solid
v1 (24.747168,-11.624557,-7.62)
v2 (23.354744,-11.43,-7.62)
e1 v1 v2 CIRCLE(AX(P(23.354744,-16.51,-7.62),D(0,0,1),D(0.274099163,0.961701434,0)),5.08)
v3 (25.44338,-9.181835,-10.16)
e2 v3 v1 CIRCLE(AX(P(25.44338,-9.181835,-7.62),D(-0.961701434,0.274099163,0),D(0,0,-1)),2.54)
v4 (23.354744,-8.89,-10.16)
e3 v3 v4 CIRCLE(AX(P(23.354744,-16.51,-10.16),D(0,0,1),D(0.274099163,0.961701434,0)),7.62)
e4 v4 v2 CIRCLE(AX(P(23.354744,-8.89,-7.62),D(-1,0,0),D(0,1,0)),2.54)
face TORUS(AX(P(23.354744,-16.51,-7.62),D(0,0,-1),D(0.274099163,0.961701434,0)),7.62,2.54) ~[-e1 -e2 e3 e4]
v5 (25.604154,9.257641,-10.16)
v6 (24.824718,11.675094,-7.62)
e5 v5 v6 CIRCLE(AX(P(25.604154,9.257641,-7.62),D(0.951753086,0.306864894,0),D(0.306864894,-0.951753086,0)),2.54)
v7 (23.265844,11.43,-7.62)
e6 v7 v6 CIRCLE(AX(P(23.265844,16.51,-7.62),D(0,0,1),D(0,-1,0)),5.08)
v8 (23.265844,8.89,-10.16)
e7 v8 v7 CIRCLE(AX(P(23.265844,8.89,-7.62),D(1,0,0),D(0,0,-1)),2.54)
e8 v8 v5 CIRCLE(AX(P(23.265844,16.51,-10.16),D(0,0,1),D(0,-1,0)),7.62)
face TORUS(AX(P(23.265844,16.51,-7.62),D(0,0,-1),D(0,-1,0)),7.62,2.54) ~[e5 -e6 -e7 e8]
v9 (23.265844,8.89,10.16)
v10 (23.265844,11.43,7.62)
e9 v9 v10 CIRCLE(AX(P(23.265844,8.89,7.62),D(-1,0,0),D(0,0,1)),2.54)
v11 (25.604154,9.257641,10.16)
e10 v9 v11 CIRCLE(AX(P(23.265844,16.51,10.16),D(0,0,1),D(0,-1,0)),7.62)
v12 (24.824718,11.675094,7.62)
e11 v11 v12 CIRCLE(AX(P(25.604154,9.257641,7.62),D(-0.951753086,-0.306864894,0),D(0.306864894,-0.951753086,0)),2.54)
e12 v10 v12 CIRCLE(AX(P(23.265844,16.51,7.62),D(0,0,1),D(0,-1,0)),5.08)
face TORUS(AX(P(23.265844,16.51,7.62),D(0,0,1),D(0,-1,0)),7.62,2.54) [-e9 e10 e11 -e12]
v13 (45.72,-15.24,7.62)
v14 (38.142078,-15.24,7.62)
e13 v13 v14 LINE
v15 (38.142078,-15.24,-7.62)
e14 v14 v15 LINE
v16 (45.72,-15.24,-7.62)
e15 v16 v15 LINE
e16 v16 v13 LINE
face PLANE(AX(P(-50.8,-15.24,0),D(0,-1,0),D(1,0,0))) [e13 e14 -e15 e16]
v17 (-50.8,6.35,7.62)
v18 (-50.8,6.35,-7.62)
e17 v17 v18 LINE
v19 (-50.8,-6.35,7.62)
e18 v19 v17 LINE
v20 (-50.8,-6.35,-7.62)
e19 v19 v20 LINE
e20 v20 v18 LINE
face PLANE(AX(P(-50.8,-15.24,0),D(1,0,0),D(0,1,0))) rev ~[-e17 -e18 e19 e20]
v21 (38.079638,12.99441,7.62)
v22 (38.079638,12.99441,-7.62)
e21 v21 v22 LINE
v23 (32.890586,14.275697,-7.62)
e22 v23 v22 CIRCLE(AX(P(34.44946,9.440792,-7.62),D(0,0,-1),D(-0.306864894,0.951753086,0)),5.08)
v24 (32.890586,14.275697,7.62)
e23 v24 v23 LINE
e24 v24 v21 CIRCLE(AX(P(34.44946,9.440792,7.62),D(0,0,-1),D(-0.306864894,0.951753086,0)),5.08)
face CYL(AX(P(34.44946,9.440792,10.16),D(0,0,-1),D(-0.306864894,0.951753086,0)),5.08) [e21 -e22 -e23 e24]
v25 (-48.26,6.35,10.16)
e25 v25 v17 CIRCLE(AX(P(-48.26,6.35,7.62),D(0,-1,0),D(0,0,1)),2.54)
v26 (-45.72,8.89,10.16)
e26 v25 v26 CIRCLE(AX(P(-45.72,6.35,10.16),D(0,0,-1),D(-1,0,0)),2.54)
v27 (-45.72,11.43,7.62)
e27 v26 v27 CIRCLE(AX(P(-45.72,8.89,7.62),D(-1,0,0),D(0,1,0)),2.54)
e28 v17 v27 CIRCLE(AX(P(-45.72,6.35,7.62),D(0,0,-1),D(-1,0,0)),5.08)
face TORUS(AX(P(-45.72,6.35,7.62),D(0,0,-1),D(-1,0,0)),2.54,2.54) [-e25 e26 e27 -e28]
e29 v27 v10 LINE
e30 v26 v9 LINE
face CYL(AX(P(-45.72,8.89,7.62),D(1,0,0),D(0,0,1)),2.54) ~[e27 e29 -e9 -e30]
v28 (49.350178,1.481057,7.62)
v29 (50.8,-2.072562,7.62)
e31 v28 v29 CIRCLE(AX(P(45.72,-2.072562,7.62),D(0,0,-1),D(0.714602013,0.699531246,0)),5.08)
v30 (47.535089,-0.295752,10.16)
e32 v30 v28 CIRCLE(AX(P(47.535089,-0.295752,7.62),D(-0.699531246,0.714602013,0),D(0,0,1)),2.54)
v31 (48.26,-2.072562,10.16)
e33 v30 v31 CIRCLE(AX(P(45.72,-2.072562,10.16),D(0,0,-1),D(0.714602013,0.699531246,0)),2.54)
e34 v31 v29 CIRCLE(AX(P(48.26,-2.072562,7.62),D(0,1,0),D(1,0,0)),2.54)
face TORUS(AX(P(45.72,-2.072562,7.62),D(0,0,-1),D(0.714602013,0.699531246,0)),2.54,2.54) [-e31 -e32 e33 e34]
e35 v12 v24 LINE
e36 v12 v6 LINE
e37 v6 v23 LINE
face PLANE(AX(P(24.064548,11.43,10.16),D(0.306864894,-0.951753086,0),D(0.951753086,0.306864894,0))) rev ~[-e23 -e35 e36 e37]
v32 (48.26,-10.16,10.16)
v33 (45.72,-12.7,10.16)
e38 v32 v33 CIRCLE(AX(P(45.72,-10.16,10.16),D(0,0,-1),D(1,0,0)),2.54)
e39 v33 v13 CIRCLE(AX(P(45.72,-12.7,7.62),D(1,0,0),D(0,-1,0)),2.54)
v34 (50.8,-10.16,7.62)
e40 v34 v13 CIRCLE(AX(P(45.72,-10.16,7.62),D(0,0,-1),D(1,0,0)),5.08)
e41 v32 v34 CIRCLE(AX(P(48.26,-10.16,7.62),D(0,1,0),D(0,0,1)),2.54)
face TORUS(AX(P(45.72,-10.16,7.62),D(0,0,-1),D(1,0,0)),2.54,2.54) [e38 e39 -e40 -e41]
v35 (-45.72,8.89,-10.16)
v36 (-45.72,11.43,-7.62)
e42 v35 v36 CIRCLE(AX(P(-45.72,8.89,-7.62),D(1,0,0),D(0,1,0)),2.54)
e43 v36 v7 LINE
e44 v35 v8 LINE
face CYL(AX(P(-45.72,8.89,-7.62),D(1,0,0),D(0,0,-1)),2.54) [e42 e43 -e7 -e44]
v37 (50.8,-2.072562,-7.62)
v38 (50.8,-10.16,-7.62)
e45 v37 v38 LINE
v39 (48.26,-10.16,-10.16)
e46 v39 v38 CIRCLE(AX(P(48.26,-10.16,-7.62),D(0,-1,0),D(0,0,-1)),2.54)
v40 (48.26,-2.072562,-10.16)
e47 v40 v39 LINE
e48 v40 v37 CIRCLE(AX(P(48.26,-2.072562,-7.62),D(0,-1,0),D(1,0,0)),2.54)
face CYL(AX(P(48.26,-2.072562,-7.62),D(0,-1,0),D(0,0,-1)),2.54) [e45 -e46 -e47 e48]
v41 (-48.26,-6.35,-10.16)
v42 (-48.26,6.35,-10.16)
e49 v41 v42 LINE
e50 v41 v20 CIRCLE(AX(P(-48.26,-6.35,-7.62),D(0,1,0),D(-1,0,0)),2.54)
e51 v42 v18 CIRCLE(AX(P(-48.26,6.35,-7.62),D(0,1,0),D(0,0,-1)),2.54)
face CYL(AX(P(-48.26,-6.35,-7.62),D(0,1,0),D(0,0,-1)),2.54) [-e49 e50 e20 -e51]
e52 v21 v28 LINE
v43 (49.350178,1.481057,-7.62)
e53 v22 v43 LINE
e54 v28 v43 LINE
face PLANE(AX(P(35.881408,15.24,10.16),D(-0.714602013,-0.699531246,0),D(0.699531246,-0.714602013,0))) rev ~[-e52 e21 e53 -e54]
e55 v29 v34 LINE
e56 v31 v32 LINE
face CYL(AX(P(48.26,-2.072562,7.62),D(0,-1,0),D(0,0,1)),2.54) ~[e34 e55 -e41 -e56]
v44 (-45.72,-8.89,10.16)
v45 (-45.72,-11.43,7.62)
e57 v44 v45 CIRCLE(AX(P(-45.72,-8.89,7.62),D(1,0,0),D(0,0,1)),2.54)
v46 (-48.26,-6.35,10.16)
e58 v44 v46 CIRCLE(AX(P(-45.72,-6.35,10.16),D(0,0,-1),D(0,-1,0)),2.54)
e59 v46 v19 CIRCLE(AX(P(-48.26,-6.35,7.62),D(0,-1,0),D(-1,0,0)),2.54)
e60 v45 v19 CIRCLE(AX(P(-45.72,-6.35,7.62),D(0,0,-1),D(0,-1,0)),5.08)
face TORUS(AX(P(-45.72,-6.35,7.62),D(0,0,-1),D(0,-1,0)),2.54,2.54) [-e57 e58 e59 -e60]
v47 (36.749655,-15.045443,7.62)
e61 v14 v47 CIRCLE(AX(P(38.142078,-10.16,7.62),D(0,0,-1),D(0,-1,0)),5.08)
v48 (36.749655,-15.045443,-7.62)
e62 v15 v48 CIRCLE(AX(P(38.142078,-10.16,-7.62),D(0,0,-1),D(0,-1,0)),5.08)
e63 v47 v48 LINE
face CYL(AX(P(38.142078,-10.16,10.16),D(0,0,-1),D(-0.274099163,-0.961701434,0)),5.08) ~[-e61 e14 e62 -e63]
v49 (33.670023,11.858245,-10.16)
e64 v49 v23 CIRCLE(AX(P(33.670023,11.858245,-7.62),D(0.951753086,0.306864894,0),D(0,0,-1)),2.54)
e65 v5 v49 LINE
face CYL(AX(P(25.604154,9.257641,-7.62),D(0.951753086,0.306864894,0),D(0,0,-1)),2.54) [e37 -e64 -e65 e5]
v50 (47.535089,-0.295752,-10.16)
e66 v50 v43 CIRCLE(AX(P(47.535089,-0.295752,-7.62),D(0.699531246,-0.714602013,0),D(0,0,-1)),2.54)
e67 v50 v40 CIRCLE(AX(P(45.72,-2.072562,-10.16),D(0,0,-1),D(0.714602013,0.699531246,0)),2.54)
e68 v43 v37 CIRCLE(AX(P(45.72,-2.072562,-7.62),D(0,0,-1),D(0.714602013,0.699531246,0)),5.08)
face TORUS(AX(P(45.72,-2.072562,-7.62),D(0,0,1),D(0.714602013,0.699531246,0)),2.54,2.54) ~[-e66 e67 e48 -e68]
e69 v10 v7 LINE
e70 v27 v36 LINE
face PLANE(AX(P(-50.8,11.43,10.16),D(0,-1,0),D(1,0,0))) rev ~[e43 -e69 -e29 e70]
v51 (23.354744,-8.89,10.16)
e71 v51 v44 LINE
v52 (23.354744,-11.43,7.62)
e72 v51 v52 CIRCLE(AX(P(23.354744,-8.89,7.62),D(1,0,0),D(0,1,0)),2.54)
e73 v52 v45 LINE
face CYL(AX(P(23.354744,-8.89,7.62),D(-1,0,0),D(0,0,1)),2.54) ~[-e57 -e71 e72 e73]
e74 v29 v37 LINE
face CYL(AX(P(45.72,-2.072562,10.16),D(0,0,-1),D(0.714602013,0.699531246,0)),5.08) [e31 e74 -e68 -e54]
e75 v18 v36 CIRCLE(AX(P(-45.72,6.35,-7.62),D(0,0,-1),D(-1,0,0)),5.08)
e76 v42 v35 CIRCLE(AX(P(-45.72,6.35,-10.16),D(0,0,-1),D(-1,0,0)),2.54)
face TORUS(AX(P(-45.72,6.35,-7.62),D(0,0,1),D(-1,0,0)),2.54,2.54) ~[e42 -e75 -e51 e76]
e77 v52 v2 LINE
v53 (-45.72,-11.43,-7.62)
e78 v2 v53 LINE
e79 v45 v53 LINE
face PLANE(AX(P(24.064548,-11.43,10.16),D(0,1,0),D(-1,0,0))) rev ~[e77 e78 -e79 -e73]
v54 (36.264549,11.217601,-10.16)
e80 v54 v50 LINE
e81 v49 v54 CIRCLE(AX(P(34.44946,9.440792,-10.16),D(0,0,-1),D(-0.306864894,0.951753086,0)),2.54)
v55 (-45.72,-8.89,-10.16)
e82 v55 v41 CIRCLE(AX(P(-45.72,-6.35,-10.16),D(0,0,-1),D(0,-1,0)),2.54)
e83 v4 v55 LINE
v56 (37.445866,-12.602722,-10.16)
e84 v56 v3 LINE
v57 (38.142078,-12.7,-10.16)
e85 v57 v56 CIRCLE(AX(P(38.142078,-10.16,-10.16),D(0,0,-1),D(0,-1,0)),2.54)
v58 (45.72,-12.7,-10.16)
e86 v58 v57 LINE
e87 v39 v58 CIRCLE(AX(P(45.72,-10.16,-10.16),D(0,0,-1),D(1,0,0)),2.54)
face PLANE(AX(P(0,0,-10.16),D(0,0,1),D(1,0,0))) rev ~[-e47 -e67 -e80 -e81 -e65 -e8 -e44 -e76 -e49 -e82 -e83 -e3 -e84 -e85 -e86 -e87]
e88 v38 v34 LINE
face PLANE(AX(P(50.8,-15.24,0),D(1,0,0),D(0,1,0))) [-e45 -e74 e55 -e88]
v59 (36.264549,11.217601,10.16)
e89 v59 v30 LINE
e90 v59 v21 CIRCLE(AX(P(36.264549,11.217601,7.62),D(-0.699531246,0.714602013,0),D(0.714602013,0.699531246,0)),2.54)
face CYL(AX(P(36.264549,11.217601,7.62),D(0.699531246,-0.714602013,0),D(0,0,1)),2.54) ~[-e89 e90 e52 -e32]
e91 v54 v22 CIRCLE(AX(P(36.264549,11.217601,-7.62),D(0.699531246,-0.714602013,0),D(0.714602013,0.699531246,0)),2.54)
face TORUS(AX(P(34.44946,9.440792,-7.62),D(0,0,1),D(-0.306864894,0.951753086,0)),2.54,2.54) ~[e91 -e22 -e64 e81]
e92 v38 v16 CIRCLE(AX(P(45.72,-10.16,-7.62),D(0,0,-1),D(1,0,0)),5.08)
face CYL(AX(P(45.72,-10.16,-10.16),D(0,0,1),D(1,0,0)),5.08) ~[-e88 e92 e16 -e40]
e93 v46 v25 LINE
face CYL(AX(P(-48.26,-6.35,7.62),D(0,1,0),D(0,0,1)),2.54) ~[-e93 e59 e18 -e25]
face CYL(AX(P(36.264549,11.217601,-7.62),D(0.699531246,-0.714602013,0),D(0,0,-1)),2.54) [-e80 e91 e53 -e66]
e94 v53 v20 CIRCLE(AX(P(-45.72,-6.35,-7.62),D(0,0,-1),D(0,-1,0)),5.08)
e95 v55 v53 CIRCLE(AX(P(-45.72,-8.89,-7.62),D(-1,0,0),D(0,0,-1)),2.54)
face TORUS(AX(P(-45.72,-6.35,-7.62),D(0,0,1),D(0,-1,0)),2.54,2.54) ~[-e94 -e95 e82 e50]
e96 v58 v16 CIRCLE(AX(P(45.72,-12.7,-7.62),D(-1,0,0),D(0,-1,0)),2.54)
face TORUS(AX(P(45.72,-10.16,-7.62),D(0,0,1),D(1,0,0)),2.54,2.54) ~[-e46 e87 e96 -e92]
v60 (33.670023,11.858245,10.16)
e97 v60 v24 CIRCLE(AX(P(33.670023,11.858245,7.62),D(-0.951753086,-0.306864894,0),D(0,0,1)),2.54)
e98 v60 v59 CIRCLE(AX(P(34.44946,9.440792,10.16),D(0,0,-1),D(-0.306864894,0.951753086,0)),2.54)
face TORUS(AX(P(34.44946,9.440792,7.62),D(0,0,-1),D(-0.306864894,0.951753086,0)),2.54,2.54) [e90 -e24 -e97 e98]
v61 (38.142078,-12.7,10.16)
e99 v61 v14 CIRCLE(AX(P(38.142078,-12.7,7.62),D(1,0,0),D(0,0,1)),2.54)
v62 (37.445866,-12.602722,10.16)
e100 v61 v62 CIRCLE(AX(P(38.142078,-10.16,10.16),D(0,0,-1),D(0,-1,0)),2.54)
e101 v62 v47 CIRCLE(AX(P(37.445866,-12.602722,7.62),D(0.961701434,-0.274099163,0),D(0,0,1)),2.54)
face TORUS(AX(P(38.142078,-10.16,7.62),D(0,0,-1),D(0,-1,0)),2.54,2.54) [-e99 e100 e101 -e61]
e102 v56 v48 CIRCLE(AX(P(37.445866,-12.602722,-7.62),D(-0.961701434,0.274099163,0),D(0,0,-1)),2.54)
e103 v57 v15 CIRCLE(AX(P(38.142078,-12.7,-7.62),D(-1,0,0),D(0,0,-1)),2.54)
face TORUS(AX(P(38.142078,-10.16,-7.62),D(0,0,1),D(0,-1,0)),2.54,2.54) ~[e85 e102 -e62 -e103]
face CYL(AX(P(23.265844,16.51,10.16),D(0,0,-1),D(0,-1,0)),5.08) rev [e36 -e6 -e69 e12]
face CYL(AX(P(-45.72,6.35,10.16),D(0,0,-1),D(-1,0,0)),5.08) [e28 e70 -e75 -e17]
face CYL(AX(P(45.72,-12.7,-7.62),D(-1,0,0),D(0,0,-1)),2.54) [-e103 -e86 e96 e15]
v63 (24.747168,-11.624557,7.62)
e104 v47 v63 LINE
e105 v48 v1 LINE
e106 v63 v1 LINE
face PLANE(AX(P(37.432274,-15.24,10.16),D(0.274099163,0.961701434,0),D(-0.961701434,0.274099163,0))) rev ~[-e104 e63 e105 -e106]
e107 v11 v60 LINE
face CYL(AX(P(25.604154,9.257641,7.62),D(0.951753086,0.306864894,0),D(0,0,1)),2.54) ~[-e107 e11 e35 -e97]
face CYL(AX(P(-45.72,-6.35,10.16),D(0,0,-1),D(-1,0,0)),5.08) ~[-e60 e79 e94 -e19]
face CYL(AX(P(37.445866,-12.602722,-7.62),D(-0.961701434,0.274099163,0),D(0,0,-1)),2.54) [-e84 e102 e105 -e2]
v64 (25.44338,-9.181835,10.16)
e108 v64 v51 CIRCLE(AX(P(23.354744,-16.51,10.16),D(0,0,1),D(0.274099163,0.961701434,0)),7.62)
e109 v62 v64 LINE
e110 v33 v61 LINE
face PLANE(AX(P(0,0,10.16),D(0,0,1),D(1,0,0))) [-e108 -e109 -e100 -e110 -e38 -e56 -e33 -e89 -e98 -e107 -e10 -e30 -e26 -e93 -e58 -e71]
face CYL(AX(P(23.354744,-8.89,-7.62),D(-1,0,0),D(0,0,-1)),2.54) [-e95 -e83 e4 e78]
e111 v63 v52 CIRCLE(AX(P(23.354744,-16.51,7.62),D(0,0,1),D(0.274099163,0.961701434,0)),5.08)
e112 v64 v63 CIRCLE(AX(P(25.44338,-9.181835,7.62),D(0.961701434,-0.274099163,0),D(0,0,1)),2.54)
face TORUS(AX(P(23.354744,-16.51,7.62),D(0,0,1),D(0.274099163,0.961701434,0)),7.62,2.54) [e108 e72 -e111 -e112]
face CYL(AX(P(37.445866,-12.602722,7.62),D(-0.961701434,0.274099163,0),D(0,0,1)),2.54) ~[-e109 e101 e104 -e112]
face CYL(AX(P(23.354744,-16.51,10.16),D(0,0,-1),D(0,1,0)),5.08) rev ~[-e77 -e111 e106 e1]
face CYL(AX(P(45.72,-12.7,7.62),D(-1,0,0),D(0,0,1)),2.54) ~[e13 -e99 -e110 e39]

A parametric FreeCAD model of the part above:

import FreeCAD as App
import Part
import Sketcher
Q = App.Units.Quantity


def edges_at(feature, points):
    """Names of the edges that pass closest to the given points."""
    edges = feature.Shape.Edges
    near = lambda p: min(range(len(edges)), key=lambda i: edges[i].distToShape(Part.Vertex(*p))[0])
    return sorted({f"Edge{near(p) + 1}" for p in points})


def add_polygon(sketch, points):
    """Adds a closed chain of lines whose ends are joined by coincident constraints."""
    first, n = sketch.GeometryCount, len(points)
    for a, b in zip(points, points[1:] + points[:1]):
        sketch.addGeometry(Part.LineSegment(App.Vector(*a, 0), App.Vector(*b, 0)), False)
    for i in range(n):
        sketch.addConstraint(Sketcher.Constraint("Coincident", first + i, 2, first + (i + 1) % n, 1))

doc = App.newDocument("Part")
params = doc.addObject("Spreadsheet::Sheet", "Params")
for row, (alias, value) in enumerate([
    ("sketch1_width", "4 in"),
    ("sketch1_height", "1.2 in"),
    ("pad1_length", "0.4 in"),
    ("pad1_length2", "0.4 in"),
    ("sketch2_height", "0.9 in"),
    ("pocket1_length", "1 in"),
    ("fillet_radius", "0.2 in"),
    ("fillet2_radius", "0.1 in"),
], start=1):
    params.set(f"A{row}", alias)
    params.set(f"B{row}", "=" + value)
    params.setAlias(f"B{row}", alias)

body = doc.addObject("PartDesign::Body", "Body")

# Sketch on XY plane
sketch1 = body.newObject("Sketcher::SketchObject", "Sketch")
sketch1.AttachmentSupport = (doc.getObject("XY_Plane"), [""])
sketch1.MapMode = "FlatFace"
add_polygon(sketch1, [(-51, 15), (-51, -15), (51, -15), (51, 15)])  # lines 0-3
sketch1.addConstraint(Sketcher.Constraint("Vertical", 0))
sketch1.addConstraint(Sketcher.Constraint("Horizontal", 1))
sketch1.addConstraint(Sketcher.Constraint("Vertical", 2))
sketch1.addConstraint(Sketcher.Constraint("Horizontal", 3))
sketch1.addConstraint(Sketcher.Constraint("Symmetric", 0, 2, 2, 2, -1, 1))
sketch1.addConstraint(Sketcher.Constraint("DistanceX", 1, 1, 1, 2, Q("4 in")))
sketch1.addConstraint(Sketcher.Constraint("DistanceY", 0, 2, 0, 1, Q("1.2 in")))
sketch1.setExpression("Constraints[9]", "Params.sketch1_width")
sketch1.setExpression("Constraints[10]", "Params.sketch1_height")
pad1 = body.newObject("PartDesign::Pad", "Pad")
pad1.Profile = sketch1
pad1.Type = "TwoLengths"
pad1.setExpression("Length", "Params.pad1_length")
pad1.setExpression("Length2", "Params.pad1_length2")

# Sketch on XY plane
sketch2 = body.newObject("Sketcher::SketchObject", "Sketch001")
sketch2.AttachmentSupport = (doc.getObject("XY_Plane"), [""])
sketch2.MapMode = "FlatFace"
sketch2.AttachmentOffset = App.Placement(App.Vector(0, 0, 0.4 * 25.4), App.Rotation())
add_polygon(sketch2, [(37, -15), (24, -11), (-51, -11), (-51, 11), (24, 11), (36, 15), (51, 0), (62, 0), (62, 23), (-65, 23), (-65, -23), (64, -23), (51, -15)])  # lines 0-12
sketch2.addConstraint(Sketcher.Constraint("Horizontal", 1))
sketch2.addConstraint(Sketcher.Constraint("Vertical", 2))
sketch2.addConstraint(Sketcher.Constraint("Horizontal", 3))
sketch2.addConstraint(Sketcher.Constraint("Horizontal", 6))
sketch2.addConstraint(Sketcher.Constraint("Vertical", 7))
sketch2.addConstraint(Sketcher.Constraint("Horizontal", 8))
sketch2.addConstraint(Sketcher.Constraint("Vertical", 9))
sketch2.addConstraint(Sketcher.Constraint("Horizontal", 10))
sketch2.addConstraint(Sketcher.Constraint("Horizontal", 12))
sketch2.addConstraint(Sketcher.Constraint("Symmetric", 0, 2, 3, 2, -1))
sketch2.addConstraint(Sketcher.Constraint("PointOnObject", 5, 2, -1))
sketch2.addConstraint(Sketcher.Constraint("Vertical", 5, 2, 11, 2))
sketch2.addConstraint(Sketcher.Constraint("DistanceY", 2, 1, 2, 2, Q("0.9 in")))
sketch2.addConstraint(Sketcher.Constraint("DistanceX", 1, 2, -1, 1, Q("2 in")))
sketch2.addConstraint(Sketcher.Constraint("DistanceX", -1, 1, 5, 2, Q("2 in")))
sketch2.addConstraint(Sketcher.Constraint("DistanceY", -1, 1, 4, 2, Q("0.6 in")))
sketch2.addConstraint(Sketcher.Constraint("DistanceY", 11, 2, -1, 1, Q("0.6 in")))
sketch2.addConstraint(Sketcher.Constraint("DistanceX", 1, 2, 1, 1, Q("74.864548 mm")))
sketch2.addConstraint(Sketcher.Constraint("DistanceX", 12, 2, 10, 2, Q("26.267999 mm")))
sketch2.addConstraint(Sketcher.Constraint("Distance", 0, Q("13.900079 mm")))
sketch2.addConstraint(Sketcher.Constraint("Distance", 11, Q("14.845939 mm")))
sketch2.addConstraint(Sketcher.Constraint("DistanceX", 6, 1, 6, 2, Q("10.930795 mm")))
sketch2.addConstraint(Sketcher.Constraint("DistanceX", 8, 2, 8, 1, Q("126.292713 mm")))
sketch2.addConstraint(Sketcher.Constraint("DistanceY", 7, 1, 7, 2, Q("22.956716 mm")))
sketch2.addConstraint(Sketcher.Constraint("DistanceX", 3, 2, 4, 2, Q("11.816859 mm")))
sketch2.setExpression("Constraints[25]", "Params.sketch2_height")
pocket1 = body.newObject("PartDesign::Pocket", "Pocket")
pocket1.Profile = sketch2
pocket1.setExpression("Length", "Params.pocket1_length")
doc.recompute()

fillet = body.newObject("PartDesign::Fillet", "Fillet")
fillet.Base = (pocket1, edges_at(pocket1, [
    (35.881, 15.24, 0),
    (24.065, 11.43, 0),
    (50.8, -15.24, 0),
    (37.432, -15.24, 0),
    (24.065, -11.43, 0),
    (-50.8, -11.43, 0),
    (-50.8, 11.43, 0),
    (50.8, 0, 0),
]))
fillet.setExpression("Radius", "Params.fillet_radius")
doc.recompute()

fillet2 = body.newObject("PartDesign::Fillet", "Fillet001")
fillet2.Base = (fillet, edges_at(fillet, [
    (30.748, -13.335, -10.16),
    (37.439, -15.191, -10.16),
    (24.058, -11.479, -10.16),
    (41.931, -15.24, -10.16),
    (-11.183, -11.43, -10.16),
    (49.312, -13.752, -10.16),
    (-49.312, -9.942, -10.16),
    (50.8, -6.116, -10.16),
    (-50.8, 0, -10.16),
    (50.424, -0.154, -10.16),
    (-49.312, 9.942, -10.16),
    (43.715, 7.238, -10.16),
    (-11.227, 11.43, -10.16),
    (35.667, 14.373, -10.16),
    (24.055, 11.492, -10.16),
    (28.858, 12.975, -10.16),
    (30.748, -13.335, 10.16),
    (37.439, -15.191, 10.16),
    (24.058, -11.479, 10.16),
    (41.931, -15.24, 10.16),
    (-11.183, -11.43, 10.16),
    (49.312, -13.752, 10.16),
    (-49.312, -9.942, 10.16),
    (50.8, -6.116, 10.16),
    (-50.8, 0, 10.16),
    (50.424, -0.154, 10.16),
    (-49.312, 9.942, 10.16),
    (43.715, 7.238, 10.16),
    (-11.227, 11.43, 10.16),
    (35.667, 14.373, 10.16),
    (24.055, 11.492, 10.16),
    (28.858, 12.975, 10.16),
]))
fillet2.setExpression("Radius", "Params.fillet2_radius")

doc.recompute()
